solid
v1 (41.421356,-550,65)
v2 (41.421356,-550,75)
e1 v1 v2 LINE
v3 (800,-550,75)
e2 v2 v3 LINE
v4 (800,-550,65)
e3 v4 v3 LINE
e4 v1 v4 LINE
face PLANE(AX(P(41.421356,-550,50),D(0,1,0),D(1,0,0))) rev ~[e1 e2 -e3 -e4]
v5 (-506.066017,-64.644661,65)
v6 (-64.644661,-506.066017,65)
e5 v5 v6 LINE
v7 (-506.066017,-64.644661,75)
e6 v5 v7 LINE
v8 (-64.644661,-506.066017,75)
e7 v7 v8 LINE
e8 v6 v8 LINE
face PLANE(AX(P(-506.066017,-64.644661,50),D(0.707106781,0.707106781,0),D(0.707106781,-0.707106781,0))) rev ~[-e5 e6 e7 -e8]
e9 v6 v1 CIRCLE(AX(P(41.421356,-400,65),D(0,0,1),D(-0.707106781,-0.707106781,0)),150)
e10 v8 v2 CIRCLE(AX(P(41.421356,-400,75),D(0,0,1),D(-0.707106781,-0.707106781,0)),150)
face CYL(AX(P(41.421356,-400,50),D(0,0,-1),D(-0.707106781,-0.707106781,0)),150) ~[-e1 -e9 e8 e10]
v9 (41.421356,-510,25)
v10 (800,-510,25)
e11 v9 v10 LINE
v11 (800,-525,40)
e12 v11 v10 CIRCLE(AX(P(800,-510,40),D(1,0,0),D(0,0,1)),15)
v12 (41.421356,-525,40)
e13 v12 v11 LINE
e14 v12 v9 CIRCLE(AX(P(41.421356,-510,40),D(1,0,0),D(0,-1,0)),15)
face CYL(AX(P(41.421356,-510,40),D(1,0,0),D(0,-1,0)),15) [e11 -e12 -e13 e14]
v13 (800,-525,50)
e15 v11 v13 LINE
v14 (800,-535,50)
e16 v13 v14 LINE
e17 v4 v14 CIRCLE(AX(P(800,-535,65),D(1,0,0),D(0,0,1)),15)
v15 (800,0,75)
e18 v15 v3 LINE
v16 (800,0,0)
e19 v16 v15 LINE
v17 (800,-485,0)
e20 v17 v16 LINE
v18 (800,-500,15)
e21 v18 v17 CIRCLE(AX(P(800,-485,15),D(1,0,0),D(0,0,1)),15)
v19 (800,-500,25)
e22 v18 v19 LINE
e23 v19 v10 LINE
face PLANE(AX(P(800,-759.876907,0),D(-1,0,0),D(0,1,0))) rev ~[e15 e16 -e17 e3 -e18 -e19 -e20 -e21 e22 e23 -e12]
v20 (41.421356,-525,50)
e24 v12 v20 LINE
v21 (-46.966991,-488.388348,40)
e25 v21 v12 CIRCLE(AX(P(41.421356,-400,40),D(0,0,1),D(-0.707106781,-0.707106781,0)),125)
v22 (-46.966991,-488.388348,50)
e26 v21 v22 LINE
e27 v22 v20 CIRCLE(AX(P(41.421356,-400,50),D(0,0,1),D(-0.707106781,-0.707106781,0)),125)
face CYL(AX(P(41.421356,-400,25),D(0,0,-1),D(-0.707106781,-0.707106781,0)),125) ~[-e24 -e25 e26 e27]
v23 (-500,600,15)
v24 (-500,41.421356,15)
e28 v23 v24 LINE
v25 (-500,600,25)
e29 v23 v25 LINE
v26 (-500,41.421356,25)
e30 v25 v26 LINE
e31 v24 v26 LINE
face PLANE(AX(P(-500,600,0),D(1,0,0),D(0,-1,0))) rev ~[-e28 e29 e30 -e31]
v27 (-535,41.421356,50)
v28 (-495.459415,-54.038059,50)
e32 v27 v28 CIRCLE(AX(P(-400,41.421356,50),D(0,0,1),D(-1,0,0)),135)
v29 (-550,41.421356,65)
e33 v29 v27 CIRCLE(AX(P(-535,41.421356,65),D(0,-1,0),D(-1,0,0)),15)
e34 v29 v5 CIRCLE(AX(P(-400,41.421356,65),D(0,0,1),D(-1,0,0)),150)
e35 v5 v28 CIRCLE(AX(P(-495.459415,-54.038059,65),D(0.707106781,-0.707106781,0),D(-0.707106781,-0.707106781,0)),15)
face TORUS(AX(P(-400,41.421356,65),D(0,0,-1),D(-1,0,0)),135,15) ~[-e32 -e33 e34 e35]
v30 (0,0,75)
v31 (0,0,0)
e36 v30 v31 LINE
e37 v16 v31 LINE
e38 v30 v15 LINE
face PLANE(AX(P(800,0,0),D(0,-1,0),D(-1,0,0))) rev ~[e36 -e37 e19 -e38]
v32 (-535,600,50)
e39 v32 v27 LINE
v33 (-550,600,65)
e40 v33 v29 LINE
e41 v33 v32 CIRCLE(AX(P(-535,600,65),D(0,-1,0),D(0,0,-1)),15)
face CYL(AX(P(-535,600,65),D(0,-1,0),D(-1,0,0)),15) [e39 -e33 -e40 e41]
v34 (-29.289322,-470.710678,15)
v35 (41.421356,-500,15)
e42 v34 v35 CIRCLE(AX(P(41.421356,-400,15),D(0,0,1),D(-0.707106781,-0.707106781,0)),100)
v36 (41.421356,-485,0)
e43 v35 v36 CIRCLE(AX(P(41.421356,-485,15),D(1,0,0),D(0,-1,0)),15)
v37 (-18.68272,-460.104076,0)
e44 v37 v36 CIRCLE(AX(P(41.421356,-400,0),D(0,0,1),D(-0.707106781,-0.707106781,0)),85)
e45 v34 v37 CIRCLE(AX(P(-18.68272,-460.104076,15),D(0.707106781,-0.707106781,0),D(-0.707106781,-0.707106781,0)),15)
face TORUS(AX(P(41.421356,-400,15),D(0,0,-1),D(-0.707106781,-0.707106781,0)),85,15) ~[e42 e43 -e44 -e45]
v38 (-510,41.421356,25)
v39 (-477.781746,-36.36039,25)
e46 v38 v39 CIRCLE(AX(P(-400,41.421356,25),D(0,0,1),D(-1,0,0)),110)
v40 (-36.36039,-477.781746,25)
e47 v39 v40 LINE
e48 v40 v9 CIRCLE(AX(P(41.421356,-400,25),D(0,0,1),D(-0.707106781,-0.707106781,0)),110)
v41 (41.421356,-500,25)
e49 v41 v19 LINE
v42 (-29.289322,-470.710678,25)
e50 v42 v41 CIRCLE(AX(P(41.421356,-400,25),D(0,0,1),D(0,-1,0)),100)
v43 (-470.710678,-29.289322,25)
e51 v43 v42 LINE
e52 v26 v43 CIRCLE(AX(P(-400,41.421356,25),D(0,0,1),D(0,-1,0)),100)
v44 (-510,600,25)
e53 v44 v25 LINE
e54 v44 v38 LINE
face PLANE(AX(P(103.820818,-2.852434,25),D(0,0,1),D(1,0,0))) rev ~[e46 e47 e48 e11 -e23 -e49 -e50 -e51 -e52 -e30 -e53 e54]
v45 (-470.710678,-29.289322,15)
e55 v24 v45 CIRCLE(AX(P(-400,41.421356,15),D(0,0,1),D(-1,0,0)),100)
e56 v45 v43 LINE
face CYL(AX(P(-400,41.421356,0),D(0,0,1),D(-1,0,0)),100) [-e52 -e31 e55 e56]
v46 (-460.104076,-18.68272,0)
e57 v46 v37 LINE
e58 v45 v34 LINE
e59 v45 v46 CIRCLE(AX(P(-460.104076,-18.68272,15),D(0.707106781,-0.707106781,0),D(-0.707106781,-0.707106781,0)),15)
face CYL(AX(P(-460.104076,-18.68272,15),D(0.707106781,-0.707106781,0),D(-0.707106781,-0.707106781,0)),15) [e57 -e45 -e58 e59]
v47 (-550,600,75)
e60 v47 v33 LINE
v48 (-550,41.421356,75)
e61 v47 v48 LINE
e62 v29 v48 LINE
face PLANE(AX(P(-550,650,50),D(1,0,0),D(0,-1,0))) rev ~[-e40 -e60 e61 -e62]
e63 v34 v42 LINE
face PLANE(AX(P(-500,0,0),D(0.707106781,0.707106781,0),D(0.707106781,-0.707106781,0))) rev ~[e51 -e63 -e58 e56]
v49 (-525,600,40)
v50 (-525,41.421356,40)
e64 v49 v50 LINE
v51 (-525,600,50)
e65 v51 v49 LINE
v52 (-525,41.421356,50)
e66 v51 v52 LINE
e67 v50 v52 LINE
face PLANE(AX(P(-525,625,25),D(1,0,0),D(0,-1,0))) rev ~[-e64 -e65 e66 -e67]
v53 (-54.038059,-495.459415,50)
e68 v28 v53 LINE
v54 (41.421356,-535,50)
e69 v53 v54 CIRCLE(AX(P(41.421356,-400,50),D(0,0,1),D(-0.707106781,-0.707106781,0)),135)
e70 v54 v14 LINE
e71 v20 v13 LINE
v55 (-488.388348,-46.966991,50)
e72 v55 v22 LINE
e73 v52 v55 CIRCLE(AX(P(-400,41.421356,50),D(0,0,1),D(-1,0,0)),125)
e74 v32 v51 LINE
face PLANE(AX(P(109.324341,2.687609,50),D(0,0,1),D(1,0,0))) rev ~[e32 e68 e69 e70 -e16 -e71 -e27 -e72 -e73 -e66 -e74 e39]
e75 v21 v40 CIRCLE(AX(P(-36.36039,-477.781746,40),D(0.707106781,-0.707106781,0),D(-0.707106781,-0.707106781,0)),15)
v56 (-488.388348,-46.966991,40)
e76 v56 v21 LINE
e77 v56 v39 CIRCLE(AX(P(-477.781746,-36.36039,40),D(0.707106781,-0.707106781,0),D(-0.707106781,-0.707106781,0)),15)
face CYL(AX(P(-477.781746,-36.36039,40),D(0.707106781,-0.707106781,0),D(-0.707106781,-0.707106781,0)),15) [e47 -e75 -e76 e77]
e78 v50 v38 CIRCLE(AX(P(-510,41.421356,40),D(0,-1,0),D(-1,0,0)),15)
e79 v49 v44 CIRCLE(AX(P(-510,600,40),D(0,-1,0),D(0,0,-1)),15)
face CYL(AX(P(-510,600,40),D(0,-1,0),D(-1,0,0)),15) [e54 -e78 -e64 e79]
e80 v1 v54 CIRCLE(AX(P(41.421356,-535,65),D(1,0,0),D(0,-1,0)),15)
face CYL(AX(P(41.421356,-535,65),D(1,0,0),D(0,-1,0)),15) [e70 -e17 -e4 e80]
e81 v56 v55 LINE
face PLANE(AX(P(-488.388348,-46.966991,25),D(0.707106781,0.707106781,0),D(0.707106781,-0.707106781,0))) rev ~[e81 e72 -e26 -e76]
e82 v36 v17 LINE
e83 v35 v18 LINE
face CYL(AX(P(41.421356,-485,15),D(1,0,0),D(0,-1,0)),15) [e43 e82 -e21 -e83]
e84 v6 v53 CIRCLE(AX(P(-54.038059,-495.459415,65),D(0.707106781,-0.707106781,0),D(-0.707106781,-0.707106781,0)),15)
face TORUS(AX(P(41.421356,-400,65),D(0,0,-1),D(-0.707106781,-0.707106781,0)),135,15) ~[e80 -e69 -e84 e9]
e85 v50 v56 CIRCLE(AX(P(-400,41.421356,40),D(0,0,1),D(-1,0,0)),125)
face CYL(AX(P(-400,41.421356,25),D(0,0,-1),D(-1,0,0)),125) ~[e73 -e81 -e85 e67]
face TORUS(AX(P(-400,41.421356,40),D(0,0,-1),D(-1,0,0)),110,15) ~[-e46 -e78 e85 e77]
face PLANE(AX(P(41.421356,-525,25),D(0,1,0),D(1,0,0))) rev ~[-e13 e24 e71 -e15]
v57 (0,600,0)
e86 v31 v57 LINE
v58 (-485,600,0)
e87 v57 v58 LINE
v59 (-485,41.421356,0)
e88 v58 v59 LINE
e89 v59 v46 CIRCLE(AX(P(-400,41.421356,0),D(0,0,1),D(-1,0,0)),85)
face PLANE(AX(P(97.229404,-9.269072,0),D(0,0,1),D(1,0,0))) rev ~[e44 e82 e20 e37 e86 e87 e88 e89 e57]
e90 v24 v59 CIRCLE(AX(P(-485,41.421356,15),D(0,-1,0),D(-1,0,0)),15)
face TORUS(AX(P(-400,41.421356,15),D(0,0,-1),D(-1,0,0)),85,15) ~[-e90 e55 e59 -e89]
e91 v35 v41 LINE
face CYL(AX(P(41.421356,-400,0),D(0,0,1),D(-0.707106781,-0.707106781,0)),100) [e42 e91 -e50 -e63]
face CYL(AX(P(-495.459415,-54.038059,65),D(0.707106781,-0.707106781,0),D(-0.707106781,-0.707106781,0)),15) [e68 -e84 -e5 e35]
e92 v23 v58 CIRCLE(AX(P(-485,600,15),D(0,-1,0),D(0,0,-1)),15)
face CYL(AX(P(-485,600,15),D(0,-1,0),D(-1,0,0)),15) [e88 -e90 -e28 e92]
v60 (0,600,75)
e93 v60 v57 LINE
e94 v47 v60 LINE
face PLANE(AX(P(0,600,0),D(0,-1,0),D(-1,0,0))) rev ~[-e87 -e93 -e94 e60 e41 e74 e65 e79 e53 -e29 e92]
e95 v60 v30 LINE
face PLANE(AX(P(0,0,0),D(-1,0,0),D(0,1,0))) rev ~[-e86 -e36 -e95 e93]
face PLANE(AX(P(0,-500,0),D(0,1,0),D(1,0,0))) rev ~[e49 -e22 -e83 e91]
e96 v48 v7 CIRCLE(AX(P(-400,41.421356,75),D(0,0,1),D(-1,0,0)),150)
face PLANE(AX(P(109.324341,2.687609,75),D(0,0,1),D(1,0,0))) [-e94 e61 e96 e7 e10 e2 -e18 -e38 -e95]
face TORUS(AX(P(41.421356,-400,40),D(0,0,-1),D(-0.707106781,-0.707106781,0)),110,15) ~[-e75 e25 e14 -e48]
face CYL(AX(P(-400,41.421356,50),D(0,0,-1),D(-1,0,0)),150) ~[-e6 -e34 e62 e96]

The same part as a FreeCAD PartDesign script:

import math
import FreeCAD as App
import Part
import Sketcher
from FreeCAD import Vector
Q = App.Units.Quantity


def edges_at(feature, points):
    """Names of the edges that pass closest to the given points."""
    edges = feature.Shape.Edges
    near = lambda p: min(range(len(edges)), key=lambda i: edges[i].distToShape(Part.Vertex(*p))[0])
    return sorted({f"Edge{near(p) + 1}" for p in points})

doc = App.newDocument("Part")
body = doc.addObject("PartDesign::Body", "Body")

sketch1 = body.newObject("Sketcher::SketchObject", "Sketch")
sketch1.AttachmentSupport = (doc.getObject("XY_Plane"), [""])
sketch1.MapMode = "FlatFace"
sketch1.addGeometry([
    Part.LineSegment(Vector(0, 0, 0), Vector(0, 600, 0)),
    Part.LineSegment(Vector(0, 600, 0), Vector(-500, 600, 0)),
    Part.LineSegment(Vector(-500, 600, 0), Vector(-500, 0, 0)),
    Part.LineSegment(Vector(-500, 0, 0), Vector(0, -500, 0)),
    Part.LineSegment(Vector(0, -500, 0), Vector(800, -500, 0)),
    Part.LineSegment(Vector(800, -500, 0), Vector(800, 0, 0)),
    Part.LineSegment(Vector(800, 0, 0), Vector(0, 0, 0)),
], False)
sketch1.addConstraint([
    Sketcher.Constraint("Coincident", 0, 2, 1, 1),
    Sketcher.Constraint("Coincident", 1, 2, 2, 1),
    Sketcher.Constraint("Coincident", 2, 2, 3, 1),
    Sketcher.Constraint("Coincident", 3, 2, 4, 1),
    Sketcher.Constraint("Coincident", 4, 2, 5, 1),
    Sketcher.Constraint("Coincident", 5, 2, 6, 1),
    Sketcher.Constraint("Coincident", 6, 2, 0, 1),
    Sketcher.Constraint("Vertical", 0),
    Sketcher.Constraint("Horizontal", 1),
    Sketcher.Constraint("Vertical", 2),
    Sketcher.Constraint("Horizontal", 4),
    Sketcher.Constraint("Vertical", 5),
    Sketcher.Constraint("Horizontal", 6),
    Sketcher.Constraint("Coincident", 6, 2, -1, 1),
    Sketcher.Constraint("PointOnObject", 2, 2, -1),
    Sketcher.Constraint("PointOnObject", 3, 2, -2),
    Sketcher.Constraint("Equal", 1, 5),
    Sketcher.Constraint("DistanceX", 1, 2, 1, 1, Q("500 mm")),
    Sketcher.Constraint("DistanceX", 4, 1, 4, 2, Q("800 mm")),
    Sketcher.Constraint("DistanceY", 0, 1, 0, 2, Q("600 mm")),
])
pad1 = body.newObject("PartDesign::Pad", "Pad")
pad1.Profile = sketch1
pad1.Length = 25
doc.recompute()

fillet = body.newObject("PartDesign::Fillet", "Fillet")
fillet.Base = (pad1, edges_at(pad1, [(-500, 0, 12.5), (0, -500, 12.5)]))
fillet.Radius = 100

sketch2 = body.newObject("Sketcher::SketchObject", "Sketch001")
sketch2.AttachmentSupport = (doc.getObject("XY_Plane"), [""])
sketch2.MapMode = "FlatFace"
sketch2.AttachmentOffset = App.Placement(Vector(0, 0, 25), App.Rotation())
sketch2.addGeometry([
    Part.LineSegment(Vector(-525, 625, 0), Vector(-525, 41, 0)),
    Part.ArcOfCircle(Part.Circle(Vector(-400, 41, 0), Vector(0, 0, 1), 125), math.radians(180), math.radians(225)),
    Part.LineSegment(Vector(-488, -47, 0), Vector(-47, -488, 0)),
    Part.ArcOfCircle(Part.Circle(Vector(41, -400, 0), Vector(0, 0, 1), 125), math.radians(-135), math.radians(-90)),
    Part.LineSegment(Vector(41, -525, 0), Vector(825, -525, 0)),
    Part.LineSegment(Vector(825, -525, 0), Vector(825, 25, 0)),
    Part.LineSegment(Vector(825, 25, 0), Vector(25, 25, 0)),
    Part.LineSegment(Vector(25, 25, 0), Vector(25, 625, 0)),
    Part.LineSegment(Vector(25, 625, 0), Vector(-525, 625, 0)),
], False)
sketch2.addConstraint([
    Sketcher.Constraint("Tangent", 0, 2, 1, 1),
    Sketcher.Constraint("Tangent", 1, 2, 2, 1),
    Sketcher.Constraint("Tangent", 2, 2, 3, 1),
    Sketcher.Constraint("Tangent", 3, 2, 4, 1),
    Sketcher.Constraint("Coincident", 4, 2, 5, 1),
    Sketcher.Constraint("Coincident", 5, 2, 6, 1),
    Sketcher.Constraint("Coincident", 6, 2, 7, 1),
    Sketcher.Constraint("Coincident", 7, 2, 8, 1),
    Sketcher.Constraint("Coincident", 8, 2, 0, 1),
    Sketcher.Constraint("Vertical", 0),
    Sketcher.Constraint("Horizontal", 4),
    Sketcher.Constraint("Vertical", 5),
    Sketcher.Constraint("Horizontal", 6),
    Sketcher.Constraint("Vertical", 7),
    Sketcher.Constraint("Horizontal", 8),
    Sketcher.Constraint("Equal", 1, 3),
    Sketcher.Constraint("Equal", 8, 5),
    Sketcher.Constraint("Radius", 1, Q("125 mm")),
    Sketcher.Constraint("DistanceX", 6, 2, 6, 1, Q("800 mm")),
    Sketcher.Constraint("DistanceX", 8, 2, 8, 1, Q("550 mm")),
    Sketcher.Constraint("DistanceY", 7, 1, 7, 2, Q("600 mm")),
    Sketcher.Constraint("Angle", 2, Q("-45 deg")),
    Sketcher.Constraint("DistanceX", 1, 3, -1, 1, Q("400 mm")),
    Sketcher.Constraint("DistanceY", 3, 3, -1, 1, Q("400 mm")),
    Sketcher.Constraint("Distance", 2, Q("624.264069 mm")),
])
pad2 = body.newObject("PartDesign::Pad", "Pad001")
pad2.Profile = sketch2
pad2.Length = 25

sketch3 = body.newObject("Sketcher::SketchObject", "Sketch002")
sketch3.AttachmentSupport = (doc.getObject("XY_Plane"), [""])
sketch3.MapMode = "FlatFace"
sketch3.AttachmentOffset = App.Placement(Vector(0, 0, 50), App.Rotation())
sketch3.addGeometry([
    Part.LineSegment(Vector(-550, 650, 0), Vector(-550, 41, 0)),
    Part.ArcOfCircle(Part.Circle(Vector(-400, 41, 0), Vector(0, 0, 1), 150), math.radians(180), math.radians(225)),
    Part.LineSegment(Vector(-506, -65, 0), Vector(-65, -506, 0)),
    Part.ArcOfCircle(Part.Circle(Vector(41, -400, 0), Vector(0, 0, 1), 150), math.radians(-135), math.radians(-90)),
    Part.LineSegment(Vector(41, -550, 0), Vector(850, -550, 0)),
    Part.LineSegment(Vector(850, -550, 0), Vector(850, 50, 0)),
    Part.LineSegment(Vector(850, 50, 0), Vector(50, 50, 0)),
    Part.LineSegment(Vector(50, 50, 0), Vector(50, 650, 0)),
    Part.LineSegment(Vector(50, 650, 0), Vector(-550, 650, 0)),
], False)
sketch3.addConstraint([
    Sketcher.Constraint("Tangent", 0, 2, 1, 1),
    Sketcher.Constraint("Tangent", 1, 2, 2, 1),
    Sketcher.Constraint("Tangent", 2, 2, 3, 1),
    Sketcher.Constraint("Tangent", 3, 2, 4, 1),
    Sketcher.Constraint("Coincident", 4, 2, 5, 1),
    Sketcher.Constraint("Coincident", 5, 2, 6, 1),
    Sketcher.Constraint("Coincident", 6, 2, 7, 1),
    Sketcher.Constraint("Coincident", 7, 2, 8, 1),
    Sketcher.Constraint("Coincident", 8, 2, 0, 1),
    Sketcher.Constraint("Vertical", 0),
    Sketcher.Constraint("Horizontal", 4),
    Sketcher.Constraint("Vertical", 5),
    Sketcher.Constraint("Horizontal", 6),
    Sketcher.Constraint("Vertical", 7),
    Sketcher.Constraint("Horizontal", 8),
    Sketcher.Constraint("Equal", 1, 3),
    Sketcher.Constraint("Equal", 8, 5),
    Sketcher.Constraint("Equal", 5, 7),
    Sketcher.Constraint("Radius", 1, Q("150 mm")),
    Sketcher.Constraint("DistanceX", 6, 2, 6, 1, Q("800 mm")),
    Sketcher.Constraint("DistanceX", 8, 2, 8, 1, Q("600 mm")),
    Sketcher.Constraint("Angle", 2, Q("-45 deg")),
    Sketcher.Constraint("DistanceX", 1, 3, -1, 1, Q("400 mm")),
    Sketcher.Constraint("DistanceY", 3, 3, -1, 1, Q("400 mm")),
    Sketcher.Constraint("Distance", 2, Q("624.264069 mm")),
])
pad3 = body.newObject("PartDesign::Pad", "Pad002")
pad3.Profile = sketch3
pad3.Length = 25

sketch4 = body.newObject("Sketcher::SketchObject", "Sketch003")
sketch4.AttachmentSupport = (doc.getObject("XY_Plane"), [""])
sketch4.MapMode = "FlatFace"
sketch4.addGeometry([
    Part.LineSegment(Vector(800, -760, 0), Vector(800, 0, 0)),
    Part.LineSegment(Vector(800, 0, 0), Vector(0, 0, 0)),
    Part.LineSegment(Vector(0, 0, 0), Vector(0, 600, 0)),
    Part.LineSegment(Vector(0, 600, 0), Vector(-651, 600, 0)),
    Part.LineSegment(Vector(-651, 600, 0), Vector(-651, 840, 0)),
    Part.LineSegment(Vector(-651, 840, 0), Vector(869, 840, 0)),
    Part.LineSegment(Vector(869, 840, 0), Vector(869, -760, 0)),
    Part.LineSegment(Vector(869, -760, 0), Vector(800, -760, 0)),
], False)
sketch4.addConstraint([
    Sketcher.Constraint("Coincident", 0, 2, 1, 1),
    Sketcher.Constraint("Coincident", 1, 2, 2, 1),
    Sketcher.Constraint("Coincident", 2, 2, 3, 1),
    Sketcher.Constraint("Coincident", 3, 2, 4, 1),
    Sketcher.Constraint("Coincident", 4, 2, 5, 1),
    Sketcher.Constraint("Coincident", 5, 2, 6, 1),
    Sketcher.Constraint("Coincident", 6, 2, 7, 1),
    Sketcher.Constraint("Coincident", 7, 2, 0, 1),
    Sketcher.Constraint("Vertical", 0),
    Sketcher.Constraint("Horizontal", 1),
    Sketcher.Constraint("Vertical", 2),
    Sketcher.Constraint("Horizontal", 3),
    Sketcher.Constraint("Vertical", 4),
    Sketcher.Constraint("Horizontal", 5),
    Sketcher.Constraint("Vertical", 6),
    Sketcher.Constraint("Horizontal", 7),
    Sketcher.Constraint("Coincident", 1, 2, -1, 1),
    Sketcher.Constraint("DistanceX", 1, 2, 1, 1, Q("800 mm")),
    Sketcher.Constraint("DistanceY", 2, 1, 2, 2, Q("600 mm")),
    Sketcher.Constraint("DistanceX", 7, 2, 7, 1, Q("69.270861 mm")),
    Sketcher.Constraint("DistanceY", 4, 1, 4, 2, Q("240.358782 mm")),
    Sketcher.Constraint("DistanceY", 6, 2, 6, 1, Q("1600.235689 mm")),
    Sketcher.Constraint("DistanceX", 3, 2, 3, 1, Q("650.833786 mm")),
])
pocket1 = body.newObject("PartDesign::Pocket", "Pocket")
pocket1.Profile = sketch4
pocket1.Length = 539
pocket1.Reversed = True
doc.recompute()

fillet2 = body.newObject("PartDesign::Fillet", "Fillet001")
fillet2.Base = (pocket1, edges_at(pocket1, [
    (420.711, -500, 0),
    (420.711, -525, 25),
    (420.711, -550, 50),
    (3.153, -492.388, 0),
    (-6.414, -515.485, 25),
    (-15.981, -538.582, 50),
    (-250, -250, 0),
    (-267.678, -267.678, 25),
    (-285.355, -285.355, 50),
    (-492.388, 3.153, 0),
    (-515.485, -6.414, 25),
    (-538.582, -15.981, 50),
    (-500, 320.711, 0),
    (-525, 320.711, 25),
    (-550, 320.711, 50),
]))
fillet2.Radius = 15

doc.recompute()
